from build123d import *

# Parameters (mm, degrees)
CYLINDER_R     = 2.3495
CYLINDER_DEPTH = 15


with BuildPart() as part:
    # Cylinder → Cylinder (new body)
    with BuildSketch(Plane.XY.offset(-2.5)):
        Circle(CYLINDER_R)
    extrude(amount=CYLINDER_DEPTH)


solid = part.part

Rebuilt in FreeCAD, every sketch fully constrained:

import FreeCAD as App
import Part
import Sketcher

V = App.Vector

doc = App.newDocument("Part")
body = doc.addObject("PartDesign::Body", "Body")

sketch1 = doc.addObject("Sketcher::SketchObject", "Sketch")
body.addObject(sketch1)
sketch1.AttachmentSupport = (doc.XY_Plane, [""])
sketch1.MapMode = "FlatFace"
sketch1.AttachmentOffset = App.Placement(V(0, 0, -2.5), App.Rotation())
sketch1.addGeometry(Part.Circle(V(0, 0, 0), V(0, 0, 1), 2.3495), False)
sketch1.addConstraint(Sketcher.Constraint("Coincident", 0, 3, -1, 1))
sketch1.addConstraint(Sketcher.Constraint("Diameter", 0, 4.699))
pad1 = doc.addObject("PartDesign::Pad", "Pad")
body.addObject(pad1)
pad1.Profile = sketch1
pad1.Length = 15

doc.recompute()
